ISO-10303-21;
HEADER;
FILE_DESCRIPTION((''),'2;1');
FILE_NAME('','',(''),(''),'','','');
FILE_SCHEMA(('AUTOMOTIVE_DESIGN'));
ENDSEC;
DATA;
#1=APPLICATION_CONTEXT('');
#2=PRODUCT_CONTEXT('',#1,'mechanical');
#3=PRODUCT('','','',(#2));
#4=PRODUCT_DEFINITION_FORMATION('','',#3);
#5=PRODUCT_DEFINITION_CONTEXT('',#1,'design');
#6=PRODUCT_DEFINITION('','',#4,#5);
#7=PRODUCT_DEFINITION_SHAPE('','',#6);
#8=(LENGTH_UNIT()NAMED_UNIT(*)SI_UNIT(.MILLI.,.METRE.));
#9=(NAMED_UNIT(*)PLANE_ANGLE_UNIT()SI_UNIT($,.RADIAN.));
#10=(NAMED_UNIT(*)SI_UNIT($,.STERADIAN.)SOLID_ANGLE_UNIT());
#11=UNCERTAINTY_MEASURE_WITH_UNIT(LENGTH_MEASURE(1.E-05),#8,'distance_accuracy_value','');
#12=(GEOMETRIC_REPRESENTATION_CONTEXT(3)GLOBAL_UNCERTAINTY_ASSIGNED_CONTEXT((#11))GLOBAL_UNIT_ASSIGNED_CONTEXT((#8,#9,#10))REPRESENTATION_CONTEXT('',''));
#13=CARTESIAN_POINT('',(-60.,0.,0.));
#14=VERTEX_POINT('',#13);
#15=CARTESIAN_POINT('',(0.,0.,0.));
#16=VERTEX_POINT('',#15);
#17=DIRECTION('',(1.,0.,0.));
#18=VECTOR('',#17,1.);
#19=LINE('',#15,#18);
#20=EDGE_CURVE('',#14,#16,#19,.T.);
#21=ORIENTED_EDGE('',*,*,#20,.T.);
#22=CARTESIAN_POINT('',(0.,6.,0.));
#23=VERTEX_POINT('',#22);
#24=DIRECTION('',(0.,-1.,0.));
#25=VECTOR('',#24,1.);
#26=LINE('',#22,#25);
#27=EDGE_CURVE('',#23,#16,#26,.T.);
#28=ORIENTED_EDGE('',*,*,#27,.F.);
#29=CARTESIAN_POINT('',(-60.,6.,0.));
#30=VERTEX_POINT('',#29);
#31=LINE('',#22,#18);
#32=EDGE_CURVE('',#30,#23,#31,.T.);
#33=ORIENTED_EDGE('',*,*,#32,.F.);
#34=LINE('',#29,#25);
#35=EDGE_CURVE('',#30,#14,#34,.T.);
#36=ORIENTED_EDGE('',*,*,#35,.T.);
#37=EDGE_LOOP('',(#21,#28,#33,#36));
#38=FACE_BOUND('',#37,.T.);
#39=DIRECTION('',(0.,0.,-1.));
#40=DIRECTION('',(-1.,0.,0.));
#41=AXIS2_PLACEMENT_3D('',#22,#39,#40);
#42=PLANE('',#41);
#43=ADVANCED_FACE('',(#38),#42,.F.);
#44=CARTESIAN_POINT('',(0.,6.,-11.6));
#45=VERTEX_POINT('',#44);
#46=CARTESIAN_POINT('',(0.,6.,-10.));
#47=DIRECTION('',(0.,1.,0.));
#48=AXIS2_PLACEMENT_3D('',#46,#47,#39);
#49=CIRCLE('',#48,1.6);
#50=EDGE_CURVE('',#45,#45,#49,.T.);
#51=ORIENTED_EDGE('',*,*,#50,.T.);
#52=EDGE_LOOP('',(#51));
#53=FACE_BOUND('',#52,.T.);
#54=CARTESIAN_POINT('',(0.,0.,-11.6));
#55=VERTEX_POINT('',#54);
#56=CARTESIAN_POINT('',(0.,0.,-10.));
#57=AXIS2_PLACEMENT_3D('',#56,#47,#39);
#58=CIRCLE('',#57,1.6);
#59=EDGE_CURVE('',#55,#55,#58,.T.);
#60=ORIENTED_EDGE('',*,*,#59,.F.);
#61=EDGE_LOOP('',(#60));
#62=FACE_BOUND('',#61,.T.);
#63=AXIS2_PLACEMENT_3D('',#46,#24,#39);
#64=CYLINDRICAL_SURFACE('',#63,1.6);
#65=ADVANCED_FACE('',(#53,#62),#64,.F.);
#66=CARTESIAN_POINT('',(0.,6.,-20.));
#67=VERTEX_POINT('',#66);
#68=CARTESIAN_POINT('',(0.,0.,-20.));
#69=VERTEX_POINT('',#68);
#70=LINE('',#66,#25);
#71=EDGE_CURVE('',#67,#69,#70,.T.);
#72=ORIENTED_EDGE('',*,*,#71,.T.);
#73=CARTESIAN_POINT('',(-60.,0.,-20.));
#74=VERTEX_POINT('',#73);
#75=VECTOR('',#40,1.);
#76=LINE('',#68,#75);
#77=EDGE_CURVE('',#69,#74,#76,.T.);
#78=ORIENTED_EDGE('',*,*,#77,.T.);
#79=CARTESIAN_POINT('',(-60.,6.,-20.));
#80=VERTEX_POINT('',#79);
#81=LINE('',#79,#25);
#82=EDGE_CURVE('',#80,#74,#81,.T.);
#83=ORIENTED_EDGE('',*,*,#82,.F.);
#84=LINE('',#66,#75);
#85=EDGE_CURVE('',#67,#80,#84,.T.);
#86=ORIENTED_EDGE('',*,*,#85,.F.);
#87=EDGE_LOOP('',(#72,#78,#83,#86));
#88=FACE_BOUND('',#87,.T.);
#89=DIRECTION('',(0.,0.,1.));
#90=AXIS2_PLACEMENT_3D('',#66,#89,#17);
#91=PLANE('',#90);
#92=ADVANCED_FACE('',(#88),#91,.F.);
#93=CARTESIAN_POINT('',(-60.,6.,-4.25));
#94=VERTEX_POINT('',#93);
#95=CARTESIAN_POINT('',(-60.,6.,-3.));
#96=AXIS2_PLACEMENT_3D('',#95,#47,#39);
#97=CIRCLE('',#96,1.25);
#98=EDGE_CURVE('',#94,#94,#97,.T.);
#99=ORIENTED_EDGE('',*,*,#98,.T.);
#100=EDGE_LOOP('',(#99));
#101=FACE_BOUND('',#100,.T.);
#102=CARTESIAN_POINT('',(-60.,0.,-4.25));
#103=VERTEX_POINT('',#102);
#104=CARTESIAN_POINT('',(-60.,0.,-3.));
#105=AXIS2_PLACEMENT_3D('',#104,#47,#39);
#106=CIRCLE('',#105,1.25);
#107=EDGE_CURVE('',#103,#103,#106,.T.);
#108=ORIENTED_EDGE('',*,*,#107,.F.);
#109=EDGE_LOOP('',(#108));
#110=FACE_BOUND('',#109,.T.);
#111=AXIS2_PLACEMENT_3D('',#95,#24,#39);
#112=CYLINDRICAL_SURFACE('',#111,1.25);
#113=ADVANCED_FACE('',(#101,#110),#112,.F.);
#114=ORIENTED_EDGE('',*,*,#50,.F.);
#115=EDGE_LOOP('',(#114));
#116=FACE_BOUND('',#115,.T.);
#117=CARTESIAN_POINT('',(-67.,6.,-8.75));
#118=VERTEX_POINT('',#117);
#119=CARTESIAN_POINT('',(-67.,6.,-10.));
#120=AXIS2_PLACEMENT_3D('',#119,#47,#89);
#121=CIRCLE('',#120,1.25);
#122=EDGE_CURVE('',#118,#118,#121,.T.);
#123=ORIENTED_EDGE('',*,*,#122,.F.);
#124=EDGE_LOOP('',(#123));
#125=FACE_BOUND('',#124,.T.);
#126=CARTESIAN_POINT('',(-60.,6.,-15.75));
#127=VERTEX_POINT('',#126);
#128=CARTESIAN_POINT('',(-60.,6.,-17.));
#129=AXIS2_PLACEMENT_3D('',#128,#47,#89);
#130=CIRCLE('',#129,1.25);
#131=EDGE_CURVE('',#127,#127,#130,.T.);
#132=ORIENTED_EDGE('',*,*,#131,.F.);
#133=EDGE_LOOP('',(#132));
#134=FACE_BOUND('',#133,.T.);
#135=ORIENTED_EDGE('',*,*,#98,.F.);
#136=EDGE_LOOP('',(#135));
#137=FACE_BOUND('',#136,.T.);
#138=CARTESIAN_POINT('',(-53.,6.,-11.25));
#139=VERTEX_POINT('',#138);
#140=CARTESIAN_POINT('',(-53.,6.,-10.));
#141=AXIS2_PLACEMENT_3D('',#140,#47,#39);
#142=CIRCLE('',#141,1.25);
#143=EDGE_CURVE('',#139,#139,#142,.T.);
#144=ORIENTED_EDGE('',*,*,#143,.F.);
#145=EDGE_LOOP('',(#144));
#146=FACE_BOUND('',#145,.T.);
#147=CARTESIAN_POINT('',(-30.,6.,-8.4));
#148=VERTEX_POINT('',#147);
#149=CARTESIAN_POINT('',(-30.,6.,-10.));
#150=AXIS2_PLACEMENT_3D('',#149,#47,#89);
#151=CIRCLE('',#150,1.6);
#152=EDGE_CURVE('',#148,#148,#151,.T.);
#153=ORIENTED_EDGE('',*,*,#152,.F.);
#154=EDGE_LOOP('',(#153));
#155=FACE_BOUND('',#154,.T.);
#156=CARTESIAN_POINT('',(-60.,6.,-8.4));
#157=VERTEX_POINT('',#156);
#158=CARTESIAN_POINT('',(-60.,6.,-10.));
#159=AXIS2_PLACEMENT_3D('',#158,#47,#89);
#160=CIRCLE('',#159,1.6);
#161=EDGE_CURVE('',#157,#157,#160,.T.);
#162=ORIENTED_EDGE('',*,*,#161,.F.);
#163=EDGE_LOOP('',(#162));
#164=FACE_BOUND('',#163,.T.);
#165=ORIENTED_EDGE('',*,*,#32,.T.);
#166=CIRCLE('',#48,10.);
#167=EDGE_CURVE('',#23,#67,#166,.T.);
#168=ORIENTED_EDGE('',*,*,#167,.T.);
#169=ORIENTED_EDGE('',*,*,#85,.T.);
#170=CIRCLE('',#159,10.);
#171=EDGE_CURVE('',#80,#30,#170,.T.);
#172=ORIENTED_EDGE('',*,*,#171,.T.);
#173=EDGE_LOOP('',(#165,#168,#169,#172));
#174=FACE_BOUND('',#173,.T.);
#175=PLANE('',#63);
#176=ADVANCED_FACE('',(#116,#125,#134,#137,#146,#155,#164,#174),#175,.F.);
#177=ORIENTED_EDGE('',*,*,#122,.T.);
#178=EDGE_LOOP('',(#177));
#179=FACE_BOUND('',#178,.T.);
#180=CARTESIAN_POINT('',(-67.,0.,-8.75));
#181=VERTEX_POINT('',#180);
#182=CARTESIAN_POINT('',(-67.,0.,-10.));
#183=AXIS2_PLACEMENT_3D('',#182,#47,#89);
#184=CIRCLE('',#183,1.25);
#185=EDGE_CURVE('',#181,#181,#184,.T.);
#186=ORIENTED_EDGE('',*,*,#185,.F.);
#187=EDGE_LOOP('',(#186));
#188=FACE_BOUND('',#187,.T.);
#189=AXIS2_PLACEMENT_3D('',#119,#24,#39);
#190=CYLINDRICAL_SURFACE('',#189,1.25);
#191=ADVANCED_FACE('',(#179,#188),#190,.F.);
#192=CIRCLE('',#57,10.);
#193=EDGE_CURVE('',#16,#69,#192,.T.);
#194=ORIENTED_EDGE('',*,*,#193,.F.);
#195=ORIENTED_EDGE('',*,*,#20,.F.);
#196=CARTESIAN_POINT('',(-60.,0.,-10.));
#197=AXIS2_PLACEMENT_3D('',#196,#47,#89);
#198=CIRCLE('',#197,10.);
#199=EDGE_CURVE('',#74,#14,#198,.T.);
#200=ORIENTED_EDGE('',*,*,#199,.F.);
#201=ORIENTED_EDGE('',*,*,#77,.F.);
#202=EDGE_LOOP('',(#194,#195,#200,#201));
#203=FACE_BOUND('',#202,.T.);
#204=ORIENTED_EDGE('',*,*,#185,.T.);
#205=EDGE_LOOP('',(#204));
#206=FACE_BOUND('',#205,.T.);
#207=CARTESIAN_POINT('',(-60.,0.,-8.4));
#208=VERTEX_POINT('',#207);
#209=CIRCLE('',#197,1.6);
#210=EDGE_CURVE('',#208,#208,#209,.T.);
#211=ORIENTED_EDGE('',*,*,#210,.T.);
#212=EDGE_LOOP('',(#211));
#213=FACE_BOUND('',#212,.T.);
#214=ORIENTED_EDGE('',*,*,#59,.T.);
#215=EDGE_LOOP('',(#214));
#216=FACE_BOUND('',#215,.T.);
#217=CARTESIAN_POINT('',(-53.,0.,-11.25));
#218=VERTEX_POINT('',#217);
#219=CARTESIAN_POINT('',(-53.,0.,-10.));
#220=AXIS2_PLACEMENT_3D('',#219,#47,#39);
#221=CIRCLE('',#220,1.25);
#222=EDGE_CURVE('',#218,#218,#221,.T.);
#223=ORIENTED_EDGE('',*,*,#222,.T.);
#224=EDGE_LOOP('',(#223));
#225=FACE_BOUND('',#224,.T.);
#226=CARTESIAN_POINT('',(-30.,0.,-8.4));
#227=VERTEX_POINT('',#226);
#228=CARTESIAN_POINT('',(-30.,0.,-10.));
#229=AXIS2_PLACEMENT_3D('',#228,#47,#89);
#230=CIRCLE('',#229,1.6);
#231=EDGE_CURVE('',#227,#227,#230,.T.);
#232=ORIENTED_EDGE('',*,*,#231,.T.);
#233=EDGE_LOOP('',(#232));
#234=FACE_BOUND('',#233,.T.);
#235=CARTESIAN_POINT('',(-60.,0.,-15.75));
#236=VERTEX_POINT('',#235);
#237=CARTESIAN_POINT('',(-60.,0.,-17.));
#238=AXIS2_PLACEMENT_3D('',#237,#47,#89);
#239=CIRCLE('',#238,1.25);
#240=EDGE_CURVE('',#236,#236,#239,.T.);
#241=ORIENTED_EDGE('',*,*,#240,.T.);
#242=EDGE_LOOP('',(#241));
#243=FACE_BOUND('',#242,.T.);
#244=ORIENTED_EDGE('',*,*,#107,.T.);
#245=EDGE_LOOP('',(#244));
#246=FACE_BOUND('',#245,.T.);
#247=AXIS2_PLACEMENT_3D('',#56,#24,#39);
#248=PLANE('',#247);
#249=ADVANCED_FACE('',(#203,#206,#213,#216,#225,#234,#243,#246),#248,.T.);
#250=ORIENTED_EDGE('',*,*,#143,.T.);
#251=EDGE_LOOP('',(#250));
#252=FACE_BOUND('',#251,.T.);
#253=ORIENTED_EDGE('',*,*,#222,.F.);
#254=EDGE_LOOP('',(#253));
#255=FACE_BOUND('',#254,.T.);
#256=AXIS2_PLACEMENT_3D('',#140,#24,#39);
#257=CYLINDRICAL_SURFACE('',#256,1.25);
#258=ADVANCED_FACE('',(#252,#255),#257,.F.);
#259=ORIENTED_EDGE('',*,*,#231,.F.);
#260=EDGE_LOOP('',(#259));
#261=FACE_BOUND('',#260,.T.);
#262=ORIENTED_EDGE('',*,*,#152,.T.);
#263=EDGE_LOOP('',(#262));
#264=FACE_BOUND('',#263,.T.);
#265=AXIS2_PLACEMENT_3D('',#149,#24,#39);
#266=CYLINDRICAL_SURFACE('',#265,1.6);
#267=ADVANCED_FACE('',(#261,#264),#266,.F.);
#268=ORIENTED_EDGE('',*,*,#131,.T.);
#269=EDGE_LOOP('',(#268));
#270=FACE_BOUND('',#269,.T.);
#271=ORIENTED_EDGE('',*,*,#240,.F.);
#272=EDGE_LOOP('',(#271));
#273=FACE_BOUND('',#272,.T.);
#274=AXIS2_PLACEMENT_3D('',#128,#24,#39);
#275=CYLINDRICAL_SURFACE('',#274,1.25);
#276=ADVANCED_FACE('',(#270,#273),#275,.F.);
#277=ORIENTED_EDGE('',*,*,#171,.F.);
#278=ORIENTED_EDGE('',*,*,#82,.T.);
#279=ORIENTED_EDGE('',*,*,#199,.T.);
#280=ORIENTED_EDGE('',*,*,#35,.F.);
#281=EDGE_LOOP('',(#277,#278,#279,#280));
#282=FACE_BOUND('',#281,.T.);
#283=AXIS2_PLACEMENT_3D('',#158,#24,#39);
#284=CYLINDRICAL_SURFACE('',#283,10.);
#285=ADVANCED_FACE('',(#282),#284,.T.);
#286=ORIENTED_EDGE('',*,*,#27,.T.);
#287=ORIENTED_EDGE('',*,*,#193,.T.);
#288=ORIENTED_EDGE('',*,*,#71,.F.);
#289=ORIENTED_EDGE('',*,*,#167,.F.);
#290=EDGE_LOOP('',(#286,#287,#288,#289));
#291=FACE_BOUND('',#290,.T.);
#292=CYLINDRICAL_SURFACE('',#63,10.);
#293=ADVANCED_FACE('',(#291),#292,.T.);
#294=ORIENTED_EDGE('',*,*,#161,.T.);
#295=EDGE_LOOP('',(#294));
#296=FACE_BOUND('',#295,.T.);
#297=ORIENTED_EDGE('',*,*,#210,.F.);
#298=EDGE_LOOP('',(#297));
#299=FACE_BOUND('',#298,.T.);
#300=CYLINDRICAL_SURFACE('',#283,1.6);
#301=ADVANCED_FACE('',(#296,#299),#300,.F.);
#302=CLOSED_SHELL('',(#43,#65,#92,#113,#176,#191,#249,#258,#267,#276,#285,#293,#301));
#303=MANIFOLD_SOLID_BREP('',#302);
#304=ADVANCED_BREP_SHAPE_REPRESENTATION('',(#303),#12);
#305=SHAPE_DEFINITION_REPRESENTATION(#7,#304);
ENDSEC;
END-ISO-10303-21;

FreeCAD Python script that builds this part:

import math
import FreeCAD as App
import Part
import Sketcher

doc = App.newDocument("Part")
params = doc.addObject("Spreadsheet::Sheet", "Params")
for row, (alias, value) in enumerate([
    ("sketch1_radius", "10 mm"),
    ("sketch1_diameter", "2.5 mm"),
    ("sketch1_diameter2", "3.2 mm"),
    ("sketch1_width", "60 mm"),
    ("pad1_length", "6 mm"),
], start=1):
    params.set(f"A{row}", alias)
    params.set(f"B{row}", "=" + value)
    params.setAlias(f"B{row}", alias)

body = doc.addObject("PartDesign::Body", "Body")

# Sketch on XZ plane
sketch1 = body.newObject("Sketcher::SketchObject", "Sketch")
sketch1.AttachmentSupport = (doc.getObject("XZ_Plane"), [""])
sketch1.MapMode = "FlatFace"
sketch1.addGeometry([
    Part.LineSegment(App.Vector(-60, 0, 0), App.Vector(0, 0, 0)),  # 0
    Part.ArcOfCircle(Part.Circle(App.Vector(0, -10, 0), App.Vector(0, 0, 1), 10), math.radians(-90), math.radians(90)),  # 1
    Part.LineSegment(App.Vector(0, -20, 0), App.Vector(-60, -20, 0)),  # 2
    Part.ArcOfCircle(Part.Circle(App.Vector(-60, -10, 0), App.Vector(0, 0, 1), 10), math.radians(90), math.radians(270)),  # 3
    Part.Circle(App.Vector(-60, -3, 0), App.Vector(0, 0, 1), 1.25),  # 4
    Part.Circle(App.Vector(0, -10, 0), App.Vector(0, 0, 1), 1.6),  # 5
    Part.Circle(App.Vector(-30, -10, 0), App.Vector(0, 0, 1), 1.6),  # 6
    Part.Circle(App.Vector(-53, -10, 0), App.Vector(0, 0, 1), 1.25),  # 7
    Part.Circle(App.Vector(-60, -10, 0), App.Vector(0, 0, 1), 1.6),  # 8
    Part.Circle(App.Vector(-67, -10, 0), App.Vector(0, 0, 1), 1.25),  # 9
    Part.Circle(App.Vector(-60, -17, 0), App.Vector(0, 0, 1), 1.25),  # 10
], False)
sketch1.addConstraint([
    Sketcher.Constraint("Tangent", 0, 2, 1, 2),
    Sketcher.Constraint("Tangent", 1, 1, 2, 1),
    Sketcher.Constraint("Tangent", 2, 2, 3, 2),
    Sketcher.Constraint("Tangent", 3, 1, 0, 1),
    Sketcher.Constraint("Horizontal", 0),
    Sketcher.Constraint("Horizontal", 2),
    Sketcher.Constraint("Coincident", 0, 2, -1, 1),
    Sketcher.Constraint("Coincident", 5, 3, 1, 3),
    Sketcher.Constraint("Coincident", 8, 3, 3, 3),
    Sketcher.Constraint("Equal", 5, 6),
    Sketcher.Constraint("Equal", 4, 7),
    Sketcher.Constraint("Equal", 6, 8),
    Sketcher.Constraint("Equal", 7, 9),
    Sketcher.Constraint("Equal", 9, 10),
    Sketcher.Constraint("Horizontal", 5, 3, 6, 3),
    Sketcher.Constraint("Horizontal", 6, 3, 7, 3),
    Sketcher.Constraint("Horizontal", 8, 3, 9, 3),
    Sketcher.Constraint("Vertical", 3, 3, 4, 3),
    Sketcher.Constraint("Vertical", 8, 3, 10, 3),
    Sketcher.Constraint("Radius", 1, 10.0),
    Sketcher.Constraint("Diameter", 4, 2.5),
    Sketcher.Constraint("Diameter", 5, 3.2),
    Sketcher.Constraint("DistanceX", 0, 1, 0, 2, 60.0),
    Sketcher.Constraint("DistanceY", 4, 3, -1, 1, 3.0),
    Sketcher.Constraint("DistanceX", 6, 3, -1, 1, 30.0),
    Sketcher.Constraint("DistanceX", 7, 3, -1, 1, 53.0),
    Sketcher.Constraint("DistanceX", 9, 3, -1, 1, 67.0),
    Sketcher.Constraint("DistanceY", 10, 3, -1, 1, 17.0),
])
sketch1.setExpression("Constraints[19]", "Params.sketch1_radius")
sketch1.setExpression("Constraints[20]", "Params.sketch1_diameter")
sketch1.setExpression("Constraints[21]", "Params.sketch1_diameter2")
sketch1.setExpression("Constraints[22]", "Params.sketch1_width")
pad1 = body.newObject("PartDesign::Pad", "Pad")
pad1.Profile = sketch1
pad1.setExpression("Length", "Params.pad1_length")
pad1.Reversed = True

doc.recompute()
